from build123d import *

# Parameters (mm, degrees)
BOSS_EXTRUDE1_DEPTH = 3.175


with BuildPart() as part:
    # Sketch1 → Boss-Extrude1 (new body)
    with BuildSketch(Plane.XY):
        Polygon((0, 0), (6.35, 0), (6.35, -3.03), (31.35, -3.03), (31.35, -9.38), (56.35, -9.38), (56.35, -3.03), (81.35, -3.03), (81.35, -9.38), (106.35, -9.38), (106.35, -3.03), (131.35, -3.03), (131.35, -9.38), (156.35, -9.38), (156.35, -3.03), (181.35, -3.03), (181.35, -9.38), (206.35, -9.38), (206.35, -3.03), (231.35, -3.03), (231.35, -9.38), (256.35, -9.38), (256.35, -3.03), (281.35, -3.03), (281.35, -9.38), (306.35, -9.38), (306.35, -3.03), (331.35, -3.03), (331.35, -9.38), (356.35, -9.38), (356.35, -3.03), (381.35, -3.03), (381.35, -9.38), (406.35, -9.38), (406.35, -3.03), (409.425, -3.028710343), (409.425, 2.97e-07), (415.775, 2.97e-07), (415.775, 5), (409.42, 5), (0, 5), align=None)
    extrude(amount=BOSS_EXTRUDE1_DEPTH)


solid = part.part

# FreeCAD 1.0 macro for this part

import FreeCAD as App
import Part
import Sketcher

V = App.Vector

doc = App.newDocument("Part")
body = doc.addObject("PartDesign::Body", "Body")

sketch1 = body.newObject("Sketcher::SketchObject", "Sketch")
sketch1.AttachmentSupport = (doc.getObject("XY_Plane"), [""])
sketch1.MapMode = "FlatFace"
sketch1.addGeometry(Part.LineSegment(V(0, 0, 0), V(6.35, 0, 0)), False)
sketch1.addGeometry(Part.LineSegment(V(6.35, 0, 0), V(6.35, -3.03, 0)), False)
sketch1.addGeometry(Part.LineSegment(V(6.35, -3.03, 0), V(31.35, -3.03, 0)), False)
sketch1.addGeometry(Part.LineSegment(V(31.35, -3.03, 0), V(31.35, -9.38, 0)), False)
sketch1.addGeometry(Part.LineSegment(V(31.35, -9.38, 0), V(56.35, -9.38, 0)), False)
sketch1.addGeometry(Part.LineSegment(V(56.35, -9.38, 0), V(56.35, -3.03, 0)), False)
sketch1.addGeometry(Part.LineSegment(V(56.35, -3.03, 0), V(81.35, -3.03, 0)), False)
sketch1.addGeometry(Part.LineSegment(V(81.35, -3.03, 0), V(81.35, -9.38, 0)), False)
sketch1.addGeometry(Part.LineSegment(V(81.35, -9.38, 0), V(106.35, -9.38, 0)), False)
sketch1.addGeometry(Part.LineSegment(V(106.35, -9.38, 0), V(106.35, -3.03, 0)), False)
sketch1.addGeometry(Part.LineSegment(V(106.35, -3.03, 0), V(131.35, -3.03, 0)), False)
sketch1.addGeometry(Part.LineSegment(V(131.35, -3.03, 0), V(131.35, -9.38, 0)), False)
sketch1.addGeometry(Part.LineSegment(V(131.35, -9.38, 0), V(156.35, -9.38, 0)), False)
sketch1.addGeometry(Part.LineSegment(V(156.35, -9.38, 0), V(156.35, -3.03, 0)), False)
sketch1.addGeometry(Part.LineSegment(V(156.35, -3.03, 0), V(181.35, -3.03, 0)), False)
sketch1.addGeometry(Part.LineSegment(V(181.35, -3.03, 0), V(181.35, -9.38, 0)), False)
sketch1.addGeometry(Part.LineSegment(V(181.35, -9.38, 0), V(206.35, -9.38, 0)), False)
sketch1.addGeometry(Part.LineSegment(V(206.35, -9.38, 0), V(206.35, -3.03, 0)), False)
sketch1.addGeometry(Part.LineSegment(V(206.35, -3.03, 0), V(231.35, -3.03, 0)), False)
sketch1.addGeometry(Part.LineSegment(V(231.35, -3.03, 0), V(231.35, -9.38, 0)), False)
sketch1.addGeometry(Part.LineSegment(V(231.35, -9.38, 0), V(256.35, -9.38, 0)), False)
sketch1.addGeometry(Part.LineSegment(V(256.35, -9.38, 0), V(256.35, -3.03, 0)), False)
sketch1.addGeometry(Part.LineSegment(V(256.35, -3.03, 0), V(281.35, -3.03, 0)), False)
sketch1.addGeometry(Part.LineSegment(V(281.35, -3.03, 0), V(281.35, -9.38, 0)), False)
sketch1.addGeometry(Part.LineSegment(V(281.35, -9.38, 0), V(306.35, -9.38, 0)), False)
sketch1.addGeometry(Part.LineSegment(V(306.35, -9.38, 0), V(306.35, -3.03, 0)), False)
sketch1.addGeometry(Part.LineSegment(V(306.35, -3.03, 0), V(331.35, -3.03, 0)), False)
sketch1.addGeometry(Part.LineSegment(V(331.35, -3.03, 0), V(331.35, -9.38, 0)), False)
sketch1.addGeometry(Part.LineSegment(V(331.35, -9.38, 0), V(356.35, -9.38, 0)), False)
sketch1.addGeometry(Part.LineSegment(V(356.35, -9.38, 0), V(356.35, -3.03, 0)), False)
sketch1.addGeometry(Part.LineSegment(V(356.35, -3.03, 0), V(381.35, -3.03, 0)), False)
sketch1.addGeometry(Part.LineSegment(V(381.35, -3.03, 0), V(381.35, -9.38, 0)), False)
sketch1.addGeometry(Part.LineSegment(V(381.35, -9.38, 0), V(406.35, -9.38, 0)), False)
sketch1.addGeometry(Part.LineSegment(V(406.35, -9.38, 0), V(406.35, -3.03, 0)), False)
sketch1.addGeometry(Part.LineSegment(V(406.35, -3.03, 0), V(409.425, -3.02871, 0)), False)
sketch1.addGeometry(Part.LineSegment(V(409.425, -3.02871, 0), V(409.425, 0, 0)), False)
sketch1.addGeometry(Part.LineSegment(V(409.425, 0, 0), V(415.775, 0, 0)), False)
sketch1.addGeometry(Part.LineSegment(V(415.775, 0, 0), V(415.775, 5, 0)), False)
sketch1.addGeometry(Part.LineSegment(V(415.775, 5, 0), V(0, 5, 0)), False)
sketch1.addGeometry(Part.LineSegment(V(0, 5, 0), V(0, 0, 0)), False)
sketch1.addConstraint(Sketcher.Constraint("Coincident", 0, 2, 1, 1))
sketch1.addConstraint(Sketcher.Constraint("Coincident", 1, 2, 2, 1))
sketch1.addConstraint(Sketcher.Constraint("Coincident", 2, 2, 3, 1))
sketch1.addConstraint(Sketcher.Constraint("Coincident", 3, 2, 4, 1))
sketch1.addConstraint(Sketcher.Constraint("Coincident", 4, 2, 5, 1))
sketch1.addConstraint(Sketcher.Constraint("Coincident", 5, 2, 6, 1))
sketch1.addConstraint(Sketcher.Constraint("Coincident", 6, 2, 7, 1))
sketch1.addConstraint(Sketcher.Constraint("Coincident", 7, 2, 8, 1))
sketch1.addConstraint(Sketcher.Constraint("Coincident", 8, 2, 9, 1))
sketch1.addConstraint(Sketcher.Constraint("Coincident", 9, 2, 10, 1))
sketch1.addConstraint(Sketcher.Constraint("Coincident", 10, 2, 11, 1))
sketch1.addConstraint(Sketcher.Constraint("Coincident", 11, 2, 12, 1))
sketch1.addConstraint(Sketcher.Constraint("Coincident", 12, 2, 13, 1))
sketch1.addConstraint(Sketcher.Constraint("Coincident", 13, 2, 14, 1))
sketch1.addConstraint(Sketcher.Constraint("Coincident", 14, 2, 15, 1))
sketch1.addConstraint(Sketcher.Constraint("Coincident", 15, 2, 16, 1))
sketch1.addConstraint(Sketcher.Constraint("Coincident", 16, 2, 17, 1))
sketch1.addConstraint(Sketcher.Constraint("Coincident", 17, 2, 18, 1))
sketch1.addConstraint(Sketcher.Constraint("Coincident", 18, 2, 19, 1))
sketch1.addConstraint(Sketcher.Constraint("Coincident", 19, 2, 20, 1))
sketch1.addConstraint(Sketcher.Constraint("Coincident", 20, 2, 21, 1))
sketch1.addConstraint(Sketcher.Constraint("Coincident", 21, 2, 22, 1))
sketch1.addConstraint(Sketcher.Constraint("Coincident", 22, 2, 23, 1))
sketch1.addConstraint(Sketcher.Constraint("Coincident", 23, 2, 24, 1))
sketch1.addConstraint(Sketcher.Constraint("Coincident", 24, 2, 25, 1))
sketch1.addConstraint(Sketcher.Constraint("Coincident", 25, 2, 26, 1))
sketch1.addConstraint(Sketcher.Constraint("Coincident", 26, 2, 27, 1))
sketch1.addConstraint(Sketcher.Constraint("Coincident", 27, 2, 28, 1))
sketch1.addConstraint(Sketcher.Constraint("Coincident", 28, 2, 29, 1))
sketch1.addConstraint(Sketcher.Constraint("Coincident", 29, 2, 30, 1))
sketch1.addConstraint(Sketcher.Constraint("Coincident", 30, 2, 31, 1))
sketch1.addConstraint(Sketcher.Constraint("Coincident", 31, 2, 32, 1))
sketch1.addConstraint(Sketcher.Constraint("Coincident", 32, 2, 33, 1))
sketch1.addConstraint(Sketcher.Constraint("Coincident", 33, 2, 34, 1))
sketch1.addConstraint(Sketcher.Constraint("Coincident", 34, 2, 35, 1))
sketch1.addConstraint(Sketcher.Constraint("Coincident", 35, 2, 36, 1))
sketch1.addConstraint(Sketcher.Constraint("Coincident", 36, 2, 37, 1))
sketch1.addConstraint(Sketcher.Constraint("Coincident", 37, 2, 38, 1))
sketch1.addConstraint(Sketcher.Constraint("Coincident", 38, 2, 39, 1))
sketch1.addConstraint(Sketcher.Constraint("Coincident", 39, 2, 0, 1))
sketch1.addConstraint(Sketcher.Constraint("Horizontal", 0))
sketch1.addConstraint(Sketcher.Constraint("Vertical", 1))
sketch1.addConstraint(Sketcher.Constraint("Horizontal", 2))
sketch1.addConstraint(Sketcher.Constraint("Vertical", 3))
sketch1.addConstraint(Sketcher.Constraint("Horizontal", 4))
sketch1.addConstraint(Sketcher.Constraint("Vertical", 5))
sketch1.addConstraint(Sketcher.Constraint("Horizontal", 6))
sketch1.addConstraint(Sketcher.Constraint("Vertical", 7))
sketch1.addConstraint(Sketcher.Constraint("Horizontal", 8))
sketch1.addConstraint(Sketcher.Constraint("Vertical", 9))
sketch1.addConstraint(Sketcher.Constraint("Horizontal", 10))
sketch1.addConstraint(Sketcher.Constraint("Vertical", 11))
sketch1.addConstraint(Sketcher.Constraint("Horizontal", 12))
sketch1.addConstraint(Sketcher.Constraint("Vertical", 13))
sketch1.addConstraint(Sketcher.Constraint("Horizontal", 14))
sketch1.addConstraint(Sketcher.Constraint("Vertical", 15))
sketch1.addConstraint(Sketcher.Constraint("Horizontal", 16))
sketch1.addConstraint(Sketcher.Constraint("Vertical", 17))
sketch1.addConstraint(Sketcher.Constraint("Horizontal", 18))
sketch1.addConstraint(Sketcher.Constraint("Vertical", 19))
sketch1.addConstraint(Sketcher.Constraint("Horizontal", 20))
sketch1.addConstraint(Sketcher.Constraint("Vertical", 21))
sketch1.addConstraint(Sketcher.Constraint("Horizontal", 22))
sketch1.addConstraint(Sketcher.Constraint("Vertical", 23))
sketch1.addConstraint(Sketcher.Constraint("Horizontal", 24))
sketch1.addConstraint(Sketcher.Constraint("Vertical", 25))
sketch1.addConstraint(Sketcher.Constraint("Horizontal", 26))
sketch1.addConstraint(Sketcher.Constraint("Vertical", 27))
sketch1.addConstraint(Sketcher.Constraint("Horizontal", 28))
sketch1.addConstraint(Sketcher.Constraint("Vertical", 29))
sketch1.addConstraint(Sketcher.Constraint("Horizontal", 30))
sketch1.addConstraint(Sketcher.Constraint("Vertical", 31))
sketch1.addConstraint(Sketcher.Constraint("Horizontal", 32))
sketch1.addConstraint(Sketcher.Constraint("Vertical", 33))
sketch1.addConstraint(Sketcher.Constraint("Vertical", 35))
sketch1.addConstraint(Sketcher.Constraint("Horizontal", 36))
sketch1.addConstraint(Sketcher.Constraint("Vertical", 37))
sketch1.addConstraint(Sketcher.Constraint("Horizontal", 38))
sketch1.addConstraint(Sketcher.Constraint("Vertical", 39))
sketch1.addConstraint(Sketcher.Constraint("Coincident", 39, 2, -1, 1))
sketch1.addConstraint(Sketcher.Constraint("PointOnObject", 35, 2, -1))
sketch1.addConstraint(Sketcher.Constraint("Horizontal", 2, 2, 5, 2))
sketch1.addConstraint(Sketcher.Constraint("Horizontal", 4, 2, 7, 2))
sketch1.addConstraint(Sketcher.Constraint("Horizontal", 6, 2, 9, 2))
sketch1.addConstraint(Sketcher.Constraint("Horizontal", 8, 2, 11, 2))
sketch1.addConstraint(Sketcher.Constraint("Horizontal", 10, 2, 13, 2))
sketch1.addConstraint(Sketcher.Constraint("Horizontal", 12, 2, 15, 2))
sketch1.addConstraint(Sketcher.Constraint("Horizontal", 14, 2, 17, 2))
sketch1.addConstraint(Sketcher.Constraint("Horizontal", 16, 2, 19, 2))
sketch1.addConstraint(Sketcher.Constraint("Horizontal", 18, 2, 21, 2))
sketch1.addConstraint(Sketcher.Constraint("Horizontal", 20, 2, 23, 2))
sketch1.addConstraint(Sketcher.Constraint("Horizontal", 22, 2, 25, 2))
sketch1.addConstraint(Sketcher.Constraint("Horizontal", 24, 2, 27, 2))
sketch1.addConstraint(Sketcher.Constraint("Horizontal", 26, 2, 29, 2))
sketch1.addConstraint(Sketcher.Constraint("Horizontal", 28, 2, 31, 2))
sketch1.addConstraint(Sketcher.Constraint("Horizontal", 30, 2, 33, 2))
sketch1.addConstraint(Sketcher.Constraint("Equal", 2, 4))
sketch1.addConstraint(Sketcher.Constraint("Equal", 4, 6))
sketch1.addConstraint(Sketcher.Constraint("Equal", 6, 8))
sketch1.addConstraint(Sketcher.Constraint("Equal", 8, 10))
sketch1.addConstraint(Sketcher.Constraint("Equal", 10, 12))
sketch1.addConstraint(Sketcher.Constraint("Equal", 12, 14))
sketch1.addConstraint(Sketcher.Constraint("Equal", 14, 16))
sketch1.addConstraint(Sketcher.Constraint("Equal", 16, 18))
sketch1.addConstraint(Sketcher.Constraint("Equal", 18, 20))
sketch1.addConstraint(Sketcher.Constraint("Equal", 20, 22))
sketch1.addConstraint(Sketcher.Constraint("Equal", 22, 24))
sketch1.addConstraint(Sketcher.Constraint("Equal", 24, 26))
sketch1.addConstraint(Sketcher.Constraint("Equal", 26, 28))
sketch1.addConstraint(Sketcher.Constraint("Equal", 28, 30))
sketch1.addConstraint(Sketcher.Constraint("Equal", 30, 32))
sketch1.addConstraint(Sketcher.Constraint("Equal", 0, 36))
sketch1.addConstraint(Sketcher.Constraint("Equal", 36, 3))
sketch1.addConstraint(Sketcher.Constraint("DistanceX", 2, 1, 2, 2, 25.0))
sketch1.addConstraint(Sketcher.Constraint("DistanceY", 37, 1, 37, 2, 5.0))
sketch1.addConstraint(Sketcher.Constraint("DistanceX", 0, 1, 0, 2, 6.35))
sketch1.addConstraint(Sketcher.Constraint("DistanceY", 1, 2, 1, 1, 3.03))
sketch1.addConstraint(Sketcher.Constraint("DistanceX", 38, 2, 38, 1, 415.775))
sketch1.addConstraint(Sketcher.Constraint("DistanceY", 35, 1, 35, 2, 3.028711))
pad1 = body.newObject("PartDesign::Pad", "Pad")
pad1.Profile = sketch1
pad1.Length = 3.175

doc.recompute()
